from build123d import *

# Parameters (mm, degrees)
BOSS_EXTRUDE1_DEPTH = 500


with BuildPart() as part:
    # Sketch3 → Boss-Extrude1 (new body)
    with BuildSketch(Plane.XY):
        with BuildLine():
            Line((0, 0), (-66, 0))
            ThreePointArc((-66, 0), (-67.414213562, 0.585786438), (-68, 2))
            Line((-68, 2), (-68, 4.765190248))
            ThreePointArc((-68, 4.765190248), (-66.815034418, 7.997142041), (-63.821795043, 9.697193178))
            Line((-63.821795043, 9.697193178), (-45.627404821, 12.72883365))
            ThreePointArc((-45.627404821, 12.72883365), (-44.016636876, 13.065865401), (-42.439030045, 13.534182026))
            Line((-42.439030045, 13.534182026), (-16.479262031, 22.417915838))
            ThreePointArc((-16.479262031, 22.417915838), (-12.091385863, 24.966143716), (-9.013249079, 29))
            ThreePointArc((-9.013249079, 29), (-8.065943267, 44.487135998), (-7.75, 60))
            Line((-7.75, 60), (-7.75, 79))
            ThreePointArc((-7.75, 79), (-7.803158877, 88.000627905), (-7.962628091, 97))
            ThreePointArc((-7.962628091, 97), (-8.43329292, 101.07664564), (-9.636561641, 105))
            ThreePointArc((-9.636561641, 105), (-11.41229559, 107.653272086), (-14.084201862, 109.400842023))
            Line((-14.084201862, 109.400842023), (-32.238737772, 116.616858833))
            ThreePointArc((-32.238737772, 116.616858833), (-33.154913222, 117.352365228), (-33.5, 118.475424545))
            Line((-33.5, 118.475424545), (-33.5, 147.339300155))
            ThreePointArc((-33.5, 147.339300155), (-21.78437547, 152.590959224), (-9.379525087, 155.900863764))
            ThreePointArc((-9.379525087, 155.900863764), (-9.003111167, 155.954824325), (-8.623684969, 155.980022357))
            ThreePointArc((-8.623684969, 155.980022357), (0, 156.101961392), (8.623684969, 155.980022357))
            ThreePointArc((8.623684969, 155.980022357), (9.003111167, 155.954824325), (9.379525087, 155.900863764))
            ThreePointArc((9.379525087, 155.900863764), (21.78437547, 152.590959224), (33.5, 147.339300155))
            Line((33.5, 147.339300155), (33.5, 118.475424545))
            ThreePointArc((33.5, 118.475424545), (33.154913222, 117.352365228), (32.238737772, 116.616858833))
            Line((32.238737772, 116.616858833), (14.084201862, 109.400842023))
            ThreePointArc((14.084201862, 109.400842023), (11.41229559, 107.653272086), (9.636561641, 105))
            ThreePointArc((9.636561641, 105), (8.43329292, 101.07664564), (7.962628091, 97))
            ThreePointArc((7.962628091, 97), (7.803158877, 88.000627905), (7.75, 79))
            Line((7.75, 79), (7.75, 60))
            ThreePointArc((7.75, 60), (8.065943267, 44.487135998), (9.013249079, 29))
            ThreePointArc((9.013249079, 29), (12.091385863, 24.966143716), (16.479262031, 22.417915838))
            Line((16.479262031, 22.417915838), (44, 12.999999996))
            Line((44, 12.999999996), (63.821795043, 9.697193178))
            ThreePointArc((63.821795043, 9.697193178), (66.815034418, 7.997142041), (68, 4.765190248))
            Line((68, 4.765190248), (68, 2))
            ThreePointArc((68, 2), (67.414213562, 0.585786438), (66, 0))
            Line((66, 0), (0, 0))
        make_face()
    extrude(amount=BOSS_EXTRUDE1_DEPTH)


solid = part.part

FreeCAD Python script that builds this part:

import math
import FreeCAD as App
import Part
import Sketcher

V = App.Vector
Q = App.Units.Quantity

doc = App.newDocument("Part")
body = doc.addObject("PartDesign::Body", "Body")

# Sketch on XY plane
sketch1 = doc.addObject("Sketcher::SketchObject", "Sketch")
body.addObject(sketch1)
sketch1.AttachmentSupport = (doc.XY_Plane, [""])
sketch1.MapMode = "FlatFace"
sketch1.addGeometry([
    Part.ArcOfCircle(Part.Circle(V(-66, 2, 0), V(0, 0, 1), 2), math.radians(-180), math.radians(-90)),  # 0
    Part.LineSegment(V(-66, 0, 0), V(66, 0, 0)),  # 1
    Part.ArcOfCircle(Part.Circle(V(66, 2, 0), V(0, 0, 1), 2), math.radians(-90), math.radians(0)),  # 2
    Part.LineSegment(V(68, 2, 0), V(68, 4.76519, 0)),  # 3
    Part.ArcOfCircle(Part.Circle(V(63, 4.76519, 0), V(0, 0, 1), 5), math.radians(0), math.radians(80.54)),  # 4
    Part.LineSegment(V(63.821795, 9.697193, 0), V(44, 13, 0)),  # 5
    Part.LineSegment(V(44, 13, 0), V(16.479262, 22.417916, 0)),  # 6
    Part.ArcOfCircle(Part.Circle(V(20.688373, 34.717647, 0), V(0, 0, 1), 13), math.radians(-153.907667), math.radians(-108.891542)),  # 7
    Part.ArcOfCircle(Part.Circle(V(388.75, 60, 0), V(0, 0, 1), 381), math.radians(180), math.radians(184.66702)),  # 8
    Part.LineSegment(V(7.75, 60, 0), V(7.75, 79, 0)),  # 9
    Part.ArcOfCircle(Part.Circle(V(769.75, 79, 0), V(0, 0, 1), 762), math.radians(178.64643), math.radians(180)),  # 10
    Part.ArcOfCircle(Part.Circle(V(30.45635, 96.468504, 0), V(0, 0, 1), 22.5), math.radians(157.717249), math.radians(178.64643)),  # 11
    Part.ArcOfCircle(Part.Circle(V(17.039153, 101.966579, 0), V(0, 0, 1), 8), math.radians(111.6767), math.radians(157.717249)),  # 12
    Part.LineSegment(V(14.084202, 109.400842, 0), V(32.238738, 116.616859, 0)),  # 13
    Part.ArcOfCircle(Part.Circle(V(31.5, 118.475425, 0), V(0, 0, 1), 2), math.radians(-68.3233), math.radians(0)),  # 14
    Part.LineSegment(V(33.5, 118.475425, 0), V(33.5, 147.3393, 0)),  # 15
    Part.ArcOfCircle(Part.Circle(V(-4.975867, 77.199385, 0), V(0, 0, 1), 80), math.radians(61.252642), math.radians(79.662717)),  # 16
    Part.ArcOfCircle(Part.Circle(V(8.482313, 150.982021, 0), V(0, 0, 1), 5), math.radians(79.662717), math.radians(88.379781)),  # 17
    Part.ArcOfCircle(Part.Circle(V(0, -148.89804, 0), V(0, 0, 1), 305.000001), math.radians(88.379782), math.radians(91.620218)),  # 18
    Part.ArcOfCircle(Part.Circle(V(-8.482313, 150.982021, 0), V(0, 0, 1), 5), math.radians(91.620219), math.radians(100.337283)),  # 19
    Part.ArcOfCircle(Part.Circle(V(4.975867, 77.199385, 0), V(0, 0, 1), 80), math.radians(100.337283), math.radians(118.747358)),  # 20
    Part.LineSegment(V(-33.5, 147.3393, 0), V(-33.5, 118.475425, 0)),  # 21
    Part.ArcOfCircle(Part.Circle(V(-31.5, 118.475425, 0), V(0, 0, 1), 2), math.radians(180), math.radians(248.3233)),  # 22
    Part.LineSegment(V(-32.238738, 116.616859, 0), V(-14.084202, 109.400842, 0)),  # 23
    Part.ArcOfCircle(Part.Circle(V(-17.039153, 101.966579, 0), V(0, 0, 1), 8), math.radians(22.282751), math.radians(68.3233)),  # 24
    Part.ArcOfCircle(Part.Circle(V(-30.45635, 96.468504, 0), V(0, 0, 1), 22.5), math.radians(1.35357), math.radians(22.282751)),  # 25
    Part.ArcOfCircle(Part.Circle(V(-769.75, 79, 0), V(0, 0, 1), 762), math.radians(0), math.radians(1.35357)),  # 26
    Part.LineSegment(V(-7.75, 79, 0), V(-7.75, 60, 0)),  # 27
    Part.ArcOfCircle(Part.Circle(V(-388.75, 60, 0), V(0, 0, 1), 381), math.radians(-4.66702), math.radians(0)),  # 28
    Part.ArcOfCircle(Part.Circle(V(-20.688373, 34.717647, 0), V(0, 0, 1), 13), math.radians(-71.108458), math.radians(-26.092333)),  # 29
    Part.LineSegment(V(-16.479262, 22.417916, 0), V(-42.43903, 13.534182, 0)),  # 30
    Part.ArcOfCircle(Part.Circle(V(-48.914585, 32.456845, 0), V(0, 0, 1), 20), math.radians(-80.54), math.radians(-71.108458)),  # 31
    Part.LineSegment(V(-45.627405, 12.728834, 0), V(-63.821795, 9.697193, 0)),  # 32
    Part.ArcOfCircle(Part.Circle(V(-63, 4.76519, 0), V(0, 0, 1), 5), math.radians(99.46), math.radians(180)),  # 33
    Part.LineSegment(V(-68, 4.76519, 0), V(-68, 2, 0)),  # 34
], False)
sketch1.addConstraint([
    Sketcher.Constraint("Tangent", 0, 2, 1, 1),
    Sketcher.Constraint("Tangent", 1, 2, 2, 1),
    Sketcher.Constraint("Tangent", 2, 2, 3, 1),
    Sketcher.Constraint("Tangent", 3, 2, 4, 1),
    Sketcher.Constraint("Tangent", 4, 2, 5, 1),
    Sketcher.Constraint("Coincident", 5, 2, 6, 1),
    Sketcher.Constraint("Tangent", 6, 2, 7, 2),
    Sketcher.Constraint("Coincident", 7, 1, 8, 2),
    Sketcher.Constraint("Tangent", 8, 1, 9, 1),
    Sketcher.Constraint("Tangent", 9, 2, 10, 2),
    Sketcher.Constraint("Tangent", 10, 1, 11, 2),
    Sketcher.Constraint("Tangent", 11, 1, 12, 2),
    Sketcher.Constraint("Tangent", 12, 1, 13, 1),
    Sketcher.Constraint("Tangent", 13, 2, 14, 1),
    Sketcher.Constraint("Tangent", 14, 2, 15, 1),
    Sketcher.Constraint("Coincident", 15, 2, 16, 1),
    Sketcher.Constraint("Tangent", 16, 2, 17, 1),
    Sketcher.Constraint("Tangent", 17, 2, 18, 1),
    Sketcher.Constraint("Tangent", 18, 2, 19, 1),
    Sketcher.Constraint("Tangent", 19, 2, 20, 1),
    Sketcher.Constraint("Coincident", 20, 2, 21, 1),
    Sketcher.Constraint("Tangent", 21, 2, 22, 1),
    Sketcher.Constraint("Tangent", 22, 2, 23, 1),
    Sketcher.Constraint("Tangent", 23, 2, 24, 2),
    Sketcher.Constraint("Tangent", 24, 1, 25, 2),
    Sketcher.Constraint("Tangent", 25, 1, 26, 2),
    Sketcher.Constraint("Tangent", 26, 1, 27, 1),
    Sketcher.Constraint("Tangent", 27, 2, 28, 2),
    Sketcher.Constraint("Coincident", 28, 1, 29, 2),
    Sketcher.Constraint("Tangent", 29, 1, 30, 1),
    Sketcher.Constraint("Tangent", 30, 2, 31, 2),
    Sketcher.Constraint("Tangent", 31, 1, 32, 1),
    Sketcher.Constraint("Tangent", 32, 2, 33, 1),
    Sketcher.Constraint("Tangent", 33, 2, 34, 1),
    Sketcher.Constraint("Tangent", 34, 2, 0, 1),
    Sketcher.Constraint("Horizontal", 1),
    Sketcher.Constraint("Vertical", 3),
    Sketcher.Constraint("Vertical", 9),
    Sketcher.Constraint("Vertical", 15),
    Sketcher.Constraint("Vertical", 21),
    Sketcher.Constraint("Vertical", 27),
    Sketcher.Constraint("Vertical", 34),
    Sketcher.Constraint("Equal", 0, 2),
    Sketcher.Constraint("Equal", 2, 14),
    Sketcher.Constraint("Equal", 4, 17),
    Sketcher.Constraint("Equal", 17, 19),
    Sketcher.Constraint("Equal", 16, 20),
    Sketcher.Constraint("Equal", 14, 22),
    Sketcher.Constraint("Equal", 12, 24),
    Sketcher.Constraint("Equal", 11, 25),
    Sketcher.Constraint("Equal", 10, 26),
    Sketcher.Constraint("Equal", 8, 28),
    Sketcher.Constraint("Equal", 7, 29),
    Sketcher.Constraint("Equal", 19, 33),
    Sketcher.Constraint("Symmetric", 0, 2, 1, 2, -1, 1),
    Sketcher.Constraint("Symmetric", 17, 3, 19, 3, -2),
    Sketcher.Constraint("Symmetric", 14, 3, 22, 3, -2),
    Sketcher.Constraint("Symmetric", 12, 3, 24, 3, -2),
    Sketcher.Constraint("Symmetric", 10, 3, 26, 3, -2),
    Sketcher.Constraint("Symmetric", 7, 3, 29, 3, -2),
    Sketcher.Constraint("Symmetric", 4, 2, 32, 2, -2),
    Sketcher.Constraint("Horizontal", 16, 3, 20, 3),
    Sketcher.Constraint("Horizontal", 8, 3, 28, 3),
    Sketcher.Constraint("Horizontal", 6, 2, 29, 1),
    Sketcher.Constraint("Radius", 0, 2.0),
    Sketcher.Constraint("Radius", 4, 5.0),
    Sketcher.Constraint("Radius", 7, 13.0),
    Sketcher.Constraint("Radius", 8, 381.0),
    Sketcher.Constraint("Radius", 10, 762.0),
    Sketcher.Constraint("Radius", 12, 8.0),
    Sketcher.Constraint("Radius", 16, 80.0),
    Sketcher.Constraint("Radius", 18, 305.000001),
    Sketcher.Constraint("Radius", 31, 20.0),
    Sketcher.Constraint("Radius", 11, 22.5),
    Sketcher.Constraint("DistanceX", 1, 1, 1, 2, 132.0),
    Sketcher.Constraint("DistanceY", 9, 1, 9, 2, 19.0),
    Sketcher.Constraint("DistanceY", -1, 1, 8, 3, 60.0),
    Sketcher.Constraint("DistanceX", -1, 1, 5, 2, 44.0),
    Sketcher.Constraint("DistanceY", -1, 1, 5, 2, 13.0),
    Sketcher.Constraint("DistanceY", -1, 1, 7, 1, 29.0),
    Sketcher.Constraint("DistanceY", -1, 1, 11, 1, 105.0),
    Sketcher.Constraint("DistanceY", -1, 1, 25, 1, 97.0),
    Sketcher.Constraint("DistanceX", -1, 1, 14, 3, 31.5),
    Sketcher.Constraint("Angle", 5, Q("170.54 deg")),
    Sketcher.Constraint("DistanceX", 26, 1, 9, 2, 15.5),
    Sketcher.Constraint("DistanceX", 19, 3, 17, 2, 17.105998),
    Sketcher.Constraint("DistanceX", -1, 1, 12, 1, 14.084202),
    Sketcher.Constraint("DistanceY", -1, 1, 15, 2, 147.3393),
    Sketcher.Constraint("DistanceY", 31, 3, 29, 3, 2.260802),
    Sketcher.Constraint("DistanceY", -1, 1, 17, 3, 150.982021),
])
pad1 = doc.addObject("PartDesign::Pad", "Pad")
body.addObject(pad1)
pad1.Profile = sketch1
pad1.Length = 500

doc.recompute()
